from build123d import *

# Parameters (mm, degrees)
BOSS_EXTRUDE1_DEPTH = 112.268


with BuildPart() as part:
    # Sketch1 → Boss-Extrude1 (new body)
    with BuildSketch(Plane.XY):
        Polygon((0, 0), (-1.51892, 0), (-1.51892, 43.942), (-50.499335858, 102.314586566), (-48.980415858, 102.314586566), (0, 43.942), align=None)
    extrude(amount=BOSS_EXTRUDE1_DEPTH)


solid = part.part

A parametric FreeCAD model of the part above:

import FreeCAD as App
import Part
import Sketcher
from FreeCAD import Vector
Q = App.Units.Quantity


def add_polygon(sketch, points):
    """Adds a closed chain of lines whose ends are joined by coincident constraints."""
    first, n = sketch.GeometryCount, len(points)
    for a, b in zip(points, points[1:] + points[:1]):
        sketch.addGeometry(Part.LineSegment(App.Vector(*a, 0), App.Vector(*b, 0)), False)
    for i in range(n):
        sketch.addConstraint(Sketcher.Constraint("Coincident", first + i, 2, first + (i + 1) % n, 1))

doc = App.newDocument("Part")
body = doc.addObject("PartDesign::Body", "Body")

sketch1 = body.newObject("Sketcher::SketchObject", "Sketch")
sketch1.AttachmentSupport = (doc.getObject("XY_Plane"), [""])
sketch1.MapMode = "FlatFace"
add_polygon(sketch1, [(-1.5, 0), (0, 0), (0, 43.9), (-49, 102.3), (-50.5, 102.3), (-1.5, 43.9)])
sketch1.addConstraint(Sketcher.Constraint("Horizontal", 0))
sketch1.addConstraint(Sketcher.Constraint("Vertical", 1))
sketch1.addConstraint(Sketcher.Constraint("Horizontal", 3))
sketch1.addConstraint(Sketcher.Constraint("Vertical", 5))
sketch1.addConstraint(Sketcher.Constraint("Coincident", 0, 2, -1, 1))
sketch1.addConstraint(Sketcher.Constraint("Parallel", 2, 4))
sketch1.addConstraint(Sketcher.Constraint("Horizontal", 1, 2, 4, 2))
sketch1.addConstraint(Sketcher.Constraint("Distance", 2, Q("3 in")))
sketch1.addConstraint(Sketcher.Constraint("Angle", 2, Q("130 deg")))
sketch1.addConstraint(Sketcher.Constraint("DistanceY", 1, 1, 1, 2, Q("1.73 in")))
sketch1.addConstraint(Sketcher.Constraint("DistanceX", 0, 1, 0, 2, Q("0.0598 in")))
pad1 = body.newObject("PartDesign::Pad", "Pad")
pad1.Profile = sketch1
pad1.Length = Q("4.42 in")

doc.recompute()
